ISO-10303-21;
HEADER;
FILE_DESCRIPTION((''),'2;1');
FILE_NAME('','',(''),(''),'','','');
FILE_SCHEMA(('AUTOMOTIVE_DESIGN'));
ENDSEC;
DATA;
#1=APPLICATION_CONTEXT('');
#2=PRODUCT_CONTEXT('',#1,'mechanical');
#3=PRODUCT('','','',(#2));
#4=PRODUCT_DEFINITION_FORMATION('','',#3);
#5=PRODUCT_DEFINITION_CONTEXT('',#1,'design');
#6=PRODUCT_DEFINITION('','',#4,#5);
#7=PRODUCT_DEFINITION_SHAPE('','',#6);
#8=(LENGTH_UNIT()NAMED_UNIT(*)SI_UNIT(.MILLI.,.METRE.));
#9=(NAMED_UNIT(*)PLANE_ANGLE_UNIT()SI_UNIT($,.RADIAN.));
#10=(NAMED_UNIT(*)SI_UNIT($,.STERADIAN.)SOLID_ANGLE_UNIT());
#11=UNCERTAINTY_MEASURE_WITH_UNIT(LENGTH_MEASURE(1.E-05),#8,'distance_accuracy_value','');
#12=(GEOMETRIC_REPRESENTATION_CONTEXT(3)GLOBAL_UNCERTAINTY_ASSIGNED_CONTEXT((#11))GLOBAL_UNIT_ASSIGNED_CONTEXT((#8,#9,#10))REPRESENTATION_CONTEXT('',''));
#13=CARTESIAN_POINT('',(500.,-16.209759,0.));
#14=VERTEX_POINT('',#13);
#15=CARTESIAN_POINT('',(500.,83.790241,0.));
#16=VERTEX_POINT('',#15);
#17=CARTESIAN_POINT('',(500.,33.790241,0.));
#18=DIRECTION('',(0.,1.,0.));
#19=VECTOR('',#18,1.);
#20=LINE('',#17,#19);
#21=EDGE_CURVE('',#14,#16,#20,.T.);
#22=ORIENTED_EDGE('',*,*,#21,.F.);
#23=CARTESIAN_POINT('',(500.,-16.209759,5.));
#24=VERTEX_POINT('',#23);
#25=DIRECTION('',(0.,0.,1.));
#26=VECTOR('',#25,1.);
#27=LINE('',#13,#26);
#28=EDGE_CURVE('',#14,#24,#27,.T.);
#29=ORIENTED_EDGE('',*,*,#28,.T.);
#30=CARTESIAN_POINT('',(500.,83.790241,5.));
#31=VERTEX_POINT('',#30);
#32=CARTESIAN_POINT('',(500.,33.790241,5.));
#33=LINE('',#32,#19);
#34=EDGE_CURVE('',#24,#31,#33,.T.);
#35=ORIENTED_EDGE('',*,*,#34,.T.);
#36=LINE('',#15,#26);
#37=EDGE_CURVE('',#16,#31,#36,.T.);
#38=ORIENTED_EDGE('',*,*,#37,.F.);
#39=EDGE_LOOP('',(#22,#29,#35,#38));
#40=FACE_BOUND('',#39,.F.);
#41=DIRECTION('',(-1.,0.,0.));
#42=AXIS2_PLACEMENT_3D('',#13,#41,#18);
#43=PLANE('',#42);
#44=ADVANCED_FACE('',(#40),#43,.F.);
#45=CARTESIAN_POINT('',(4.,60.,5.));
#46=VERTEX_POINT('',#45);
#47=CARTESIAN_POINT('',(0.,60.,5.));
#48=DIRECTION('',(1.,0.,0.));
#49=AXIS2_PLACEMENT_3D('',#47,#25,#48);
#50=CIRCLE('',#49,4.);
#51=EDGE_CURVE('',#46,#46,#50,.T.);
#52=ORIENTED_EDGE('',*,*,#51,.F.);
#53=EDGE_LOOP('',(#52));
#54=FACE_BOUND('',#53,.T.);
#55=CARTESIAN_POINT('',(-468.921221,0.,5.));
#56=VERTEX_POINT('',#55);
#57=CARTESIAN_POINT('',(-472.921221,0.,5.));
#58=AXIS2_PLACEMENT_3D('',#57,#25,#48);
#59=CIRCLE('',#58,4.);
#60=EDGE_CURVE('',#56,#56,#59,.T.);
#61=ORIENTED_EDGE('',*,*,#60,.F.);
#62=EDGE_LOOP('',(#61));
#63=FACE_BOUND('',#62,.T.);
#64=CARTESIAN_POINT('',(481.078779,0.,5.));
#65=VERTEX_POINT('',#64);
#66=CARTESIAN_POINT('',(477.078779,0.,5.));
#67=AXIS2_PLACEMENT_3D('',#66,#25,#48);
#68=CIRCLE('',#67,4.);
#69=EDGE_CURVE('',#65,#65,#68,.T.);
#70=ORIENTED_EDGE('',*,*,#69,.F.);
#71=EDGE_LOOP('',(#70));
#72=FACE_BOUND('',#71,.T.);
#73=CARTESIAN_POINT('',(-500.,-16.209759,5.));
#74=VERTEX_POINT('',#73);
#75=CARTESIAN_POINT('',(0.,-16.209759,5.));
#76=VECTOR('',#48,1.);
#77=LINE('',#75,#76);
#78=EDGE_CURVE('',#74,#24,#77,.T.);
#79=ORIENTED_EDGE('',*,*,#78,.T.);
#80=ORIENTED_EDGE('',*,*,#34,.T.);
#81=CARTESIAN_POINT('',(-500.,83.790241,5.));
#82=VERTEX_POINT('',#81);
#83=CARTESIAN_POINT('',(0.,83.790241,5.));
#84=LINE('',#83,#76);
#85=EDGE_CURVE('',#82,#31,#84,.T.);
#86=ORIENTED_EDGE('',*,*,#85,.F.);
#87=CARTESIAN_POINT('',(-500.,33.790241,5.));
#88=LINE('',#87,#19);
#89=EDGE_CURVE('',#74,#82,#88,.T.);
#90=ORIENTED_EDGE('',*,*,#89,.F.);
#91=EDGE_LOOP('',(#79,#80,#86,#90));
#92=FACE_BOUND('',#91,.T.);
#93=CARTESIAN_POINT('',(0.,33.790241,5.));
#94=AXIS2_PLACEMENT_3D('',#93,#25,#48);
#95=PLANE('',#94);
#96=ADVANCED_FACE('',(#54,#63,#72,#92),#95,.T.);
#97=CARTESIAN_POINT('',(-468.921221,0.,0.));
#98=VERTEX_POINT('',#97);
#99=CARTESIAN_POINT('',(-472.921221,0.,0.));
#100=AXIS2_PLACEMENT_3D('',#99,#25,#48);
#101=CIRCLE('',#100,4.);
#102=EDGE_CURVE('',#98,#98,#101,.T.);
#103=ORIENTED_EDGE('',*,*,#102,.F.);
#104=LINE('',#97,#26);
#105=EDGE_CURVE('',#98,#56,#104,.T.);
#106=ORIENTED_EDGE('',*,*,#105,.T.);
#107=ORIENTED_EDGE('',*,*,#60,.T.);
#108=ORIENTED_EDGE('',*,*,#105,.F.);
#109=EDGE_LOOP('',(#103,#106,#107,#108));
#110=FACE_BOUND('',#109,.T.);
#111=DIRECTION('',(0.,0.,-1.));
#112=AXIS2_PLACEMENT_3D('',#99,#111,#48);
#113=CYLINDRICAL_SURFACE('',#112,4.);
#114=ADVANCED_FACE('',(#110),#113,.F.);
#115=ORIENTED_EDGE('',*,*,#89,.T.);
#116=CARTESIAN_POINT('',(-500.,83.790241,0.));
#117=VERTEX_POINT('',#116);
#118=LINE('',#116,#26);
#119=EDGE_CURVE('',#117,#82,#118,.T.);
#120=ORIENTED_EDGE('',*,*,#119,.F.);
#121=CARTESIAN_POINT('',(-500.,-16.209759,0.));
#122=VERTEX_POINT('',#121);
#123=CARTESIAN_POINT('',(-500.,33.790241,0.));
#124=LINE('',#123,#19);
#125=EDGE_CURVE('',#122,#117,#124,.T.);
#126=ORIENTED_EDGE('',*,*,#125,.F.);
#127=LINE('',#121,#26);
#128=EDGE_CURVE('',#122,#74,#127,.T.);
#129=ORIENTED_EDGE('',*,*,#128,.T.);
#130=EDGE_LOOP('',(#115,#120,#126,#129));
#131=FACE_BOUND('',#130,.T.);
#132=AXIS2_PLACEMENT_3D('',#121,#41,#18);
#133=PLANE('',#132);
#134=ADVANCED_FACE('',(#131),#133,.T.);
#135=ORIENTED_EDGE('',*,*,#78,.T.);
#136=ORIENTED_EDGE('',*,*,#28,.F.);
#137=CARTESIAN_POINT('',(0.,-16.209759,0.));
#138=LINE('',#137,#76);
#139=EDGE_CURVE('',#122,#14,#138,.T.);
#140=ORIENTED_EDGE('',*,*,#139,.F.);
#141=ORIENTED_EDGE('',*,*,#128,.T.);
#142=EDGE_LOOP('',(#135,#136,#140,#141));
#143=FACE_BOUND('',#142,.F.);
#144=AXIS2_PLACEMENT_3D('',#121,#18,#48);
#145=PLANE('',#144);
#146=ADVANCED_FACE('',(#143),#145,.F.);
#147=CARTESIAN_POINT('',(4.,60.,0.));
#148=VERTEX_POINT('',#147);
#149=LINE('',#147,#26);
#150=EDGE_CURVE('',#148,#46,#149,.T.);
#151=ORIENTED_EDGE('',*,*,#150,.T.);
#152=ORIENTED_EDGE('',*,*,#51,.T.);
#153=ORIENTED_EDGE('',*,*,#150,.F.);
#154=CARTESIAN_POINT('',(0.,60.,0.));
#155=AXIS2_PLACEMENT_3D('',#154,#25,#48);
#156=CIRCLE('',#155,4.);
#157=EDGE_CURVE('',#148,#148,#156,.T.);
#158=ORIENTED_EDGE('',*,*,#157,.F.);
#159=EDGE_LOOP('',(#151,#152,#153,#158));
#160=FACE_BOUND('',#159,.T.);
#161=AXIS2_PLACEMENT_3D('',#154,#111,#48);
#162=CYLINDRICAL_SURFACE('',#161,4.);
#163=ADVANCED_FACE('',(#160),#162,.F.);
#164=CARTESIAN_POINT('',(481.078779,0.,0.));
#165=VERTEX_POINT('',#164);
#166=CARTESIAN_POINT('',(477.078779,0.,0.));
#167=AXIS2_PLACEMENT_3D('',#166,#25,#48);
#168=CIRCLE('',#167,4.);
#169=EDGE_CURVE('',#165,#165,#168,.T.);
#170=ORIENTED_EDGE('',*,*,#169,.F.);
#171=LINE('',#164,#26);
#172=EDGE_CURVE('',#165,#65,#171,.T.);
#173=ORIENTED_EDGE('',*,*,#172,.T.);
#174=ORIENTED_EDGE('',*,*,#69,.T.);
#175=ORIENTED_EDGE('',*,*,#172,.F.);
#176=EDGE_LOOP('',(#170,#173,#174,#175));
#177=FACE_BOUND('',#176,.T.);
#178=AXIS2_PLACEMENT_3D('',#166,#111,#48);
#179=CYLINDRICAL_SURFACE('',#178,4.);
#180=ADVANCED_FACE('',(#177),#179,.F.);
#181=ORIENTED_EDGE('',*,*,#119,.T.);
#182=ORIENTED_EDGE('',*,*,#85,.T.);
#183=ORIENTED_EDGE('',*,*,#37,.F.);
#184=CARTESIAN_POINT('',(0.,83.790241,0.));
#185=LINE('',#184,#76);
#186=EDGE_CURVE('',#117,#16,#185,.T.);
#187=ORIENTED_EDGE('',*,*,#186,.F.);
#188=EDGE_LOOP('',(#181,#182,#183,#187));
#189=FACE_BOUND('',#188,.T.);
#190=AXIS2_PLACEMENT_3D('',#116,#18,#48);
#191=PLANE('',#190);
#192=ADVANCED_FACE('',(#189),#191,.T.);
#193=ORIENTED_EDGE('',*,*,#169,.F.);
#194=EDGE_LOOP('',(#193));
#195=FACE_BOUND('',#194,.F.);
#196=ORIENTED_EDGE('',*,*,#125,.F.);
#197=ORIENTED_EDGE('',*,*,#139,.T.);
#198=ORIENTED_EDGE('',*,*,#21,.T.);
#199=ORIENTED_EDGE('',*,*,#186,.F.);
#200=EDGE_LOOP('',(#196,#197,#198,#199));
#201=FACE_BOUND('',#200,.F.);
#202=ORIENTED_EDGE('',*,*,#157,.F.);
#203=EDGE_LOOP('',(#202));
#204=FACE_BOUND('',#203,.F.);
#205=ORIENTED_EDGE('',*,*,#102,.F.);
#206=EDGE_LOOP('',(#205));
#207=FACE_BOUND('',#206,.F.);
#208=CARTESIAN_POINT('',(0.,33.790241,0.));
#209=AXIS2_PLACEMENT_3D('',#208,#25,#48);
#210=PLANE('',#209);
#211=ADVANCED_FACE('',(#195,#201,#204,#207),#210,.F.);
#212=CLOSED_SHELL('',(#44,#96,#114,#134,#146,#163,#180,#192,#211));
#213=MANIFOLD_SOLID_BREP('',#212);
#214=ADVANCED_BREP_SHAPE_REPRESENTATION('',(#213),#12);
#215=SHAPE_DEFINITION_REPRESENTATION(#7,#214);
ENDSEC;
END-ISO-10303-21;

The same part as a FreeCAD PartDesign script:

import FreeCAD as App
import Part
import Sketcher
from FreeCAD import Vector


def add_polygon(sketch, points):
    """Adds a closed chain of lines whose ends are joined by coincident constraints."""
    first, n = sketch.GeometryCount, len(points)
    for a, b in zip(points, points[1:] + points[:1]):
        sketch.addGeometry(Part.LineSegment(App.Vector(*a, 0), App.Vector(*b, 0)), False)
    for i in range(n):
        sketch.addConstraint(Sketcher.Constraint("Coincident", first + i, 2, first + (i + 1) % n, 1))

doc = App.newDocument("Part")
params = doc.addObject("Spreadsheet::Sheet", "Params")
for row, (alias, value) in enumerate([
    ("sketch1_diameter", "8 mm"),
    ("sketch1_width", "1000 mm"),
    ("sketch1_height", "100 mm"),
    ("pad1_length", "5 mm"),
], start=1):
    params.set(f"A{row}", alias)
    params.set(f"B{row}", "=" + value)
    params.setAlias(f"B{row}", alias)

body = doc.addObject("PartDesign::Body", "Body")

# Sketch on XY plane
sketch1 = body.newObject("Sketcher::SketchObject", "Sketch")
sketch1.AttachmentSupport = (doc.getObject("XY_Plane"), [""])
sketch1.MapMode = "FlatFace"
add_polygon(sketch1, [(-500, 83.8), (-500, -16.2), (500, -16.2), (500, 83.8)])  # lines 0-3
sketch1.addGeometry(Part.Circle(Vector(-472.9, 0, 0), Vector(0, 0, 1), 4), False)  # 4
sketch1.addGeometry(Part.Circle(Vector(477.1, 0, 0), Vector(0, 0, 1), 4), False)  # 5
sketch1.addGeometry(Part.Circle(Vector(0, 60, 0), Vector(0, 0, 1), 4), False)  # 6
sketch1.addConstraint(Sketcher.Constraint("Vertical", 0))
sketch1.addConstraint(Sketcher.Constraint("Horizontal", 1))
sketch1.addConstraint(Sketcher.Constraint("Vertical", 2))
sketch1.addConstraint(Sketcher.Constraint("Horizontal", 3))
sketch1.addConstraint(Sketcher.Constraint("Equal", 4, 5))
sketch1.addConstraint(Sketcher.Constraint("Equal", 5, 6))
sketch1.addConstraint(Sketcher.Constraint("PointOnObject", 4, 3, -1))
sketch1.addConstraint(Sketcher.Constraint("PointOnObject", 5, 3, -1))
sketch1.addConstraint(Sketcher.Constraint("PointOnObject", 6, 3, -2))
sketch1.addConstraint(Sketcher.Constraint("Diameter", 4, 8.0))
sketch1.addConstraint(Sketcher.Constraint("DistanceX", 1, 1, 1, 2, 1000.0))
sketch1.addConstraint(Sketcher.Constraint("DistanceY", 0, 2, 0, 1, 100.0))
sketch1.addConstraint(Sketcher.Constraint("DistanceY", -1, 1, 6, 3, 60.0))
sketch1.addConstraint(Sketcher.Constraint("DistanceX", 0, 2, -1, 1, 500.0))
sketch1.addConstraint(Sketcher.Constraint("DistanceX", 4, 3, 5, 3, 950.0))
sketch1.addConstraint(Sketcher.Constraint("DistanceX", 4, 3, -1, 1, 472.921221))
sketch1.addConstraint(Sketcher.Constraint("DistanceY", 0, 2, -1, 1, 16.209759))
sketch1.setExpression("Constraints[13]", "Params.sketch1_diameter")
sketch1.setExpression("Constraints[14]", "Params.sketch1_width")
sketch1.setExpression("Constraints[15]", "Params.sketch1_height")
pad1 = body.newObject("PartDesign::Pad", "Pad")
pad1.Profile = sketch1
pad1.setExpression("Length", "Params.pad1_length")

doc.recompute()
